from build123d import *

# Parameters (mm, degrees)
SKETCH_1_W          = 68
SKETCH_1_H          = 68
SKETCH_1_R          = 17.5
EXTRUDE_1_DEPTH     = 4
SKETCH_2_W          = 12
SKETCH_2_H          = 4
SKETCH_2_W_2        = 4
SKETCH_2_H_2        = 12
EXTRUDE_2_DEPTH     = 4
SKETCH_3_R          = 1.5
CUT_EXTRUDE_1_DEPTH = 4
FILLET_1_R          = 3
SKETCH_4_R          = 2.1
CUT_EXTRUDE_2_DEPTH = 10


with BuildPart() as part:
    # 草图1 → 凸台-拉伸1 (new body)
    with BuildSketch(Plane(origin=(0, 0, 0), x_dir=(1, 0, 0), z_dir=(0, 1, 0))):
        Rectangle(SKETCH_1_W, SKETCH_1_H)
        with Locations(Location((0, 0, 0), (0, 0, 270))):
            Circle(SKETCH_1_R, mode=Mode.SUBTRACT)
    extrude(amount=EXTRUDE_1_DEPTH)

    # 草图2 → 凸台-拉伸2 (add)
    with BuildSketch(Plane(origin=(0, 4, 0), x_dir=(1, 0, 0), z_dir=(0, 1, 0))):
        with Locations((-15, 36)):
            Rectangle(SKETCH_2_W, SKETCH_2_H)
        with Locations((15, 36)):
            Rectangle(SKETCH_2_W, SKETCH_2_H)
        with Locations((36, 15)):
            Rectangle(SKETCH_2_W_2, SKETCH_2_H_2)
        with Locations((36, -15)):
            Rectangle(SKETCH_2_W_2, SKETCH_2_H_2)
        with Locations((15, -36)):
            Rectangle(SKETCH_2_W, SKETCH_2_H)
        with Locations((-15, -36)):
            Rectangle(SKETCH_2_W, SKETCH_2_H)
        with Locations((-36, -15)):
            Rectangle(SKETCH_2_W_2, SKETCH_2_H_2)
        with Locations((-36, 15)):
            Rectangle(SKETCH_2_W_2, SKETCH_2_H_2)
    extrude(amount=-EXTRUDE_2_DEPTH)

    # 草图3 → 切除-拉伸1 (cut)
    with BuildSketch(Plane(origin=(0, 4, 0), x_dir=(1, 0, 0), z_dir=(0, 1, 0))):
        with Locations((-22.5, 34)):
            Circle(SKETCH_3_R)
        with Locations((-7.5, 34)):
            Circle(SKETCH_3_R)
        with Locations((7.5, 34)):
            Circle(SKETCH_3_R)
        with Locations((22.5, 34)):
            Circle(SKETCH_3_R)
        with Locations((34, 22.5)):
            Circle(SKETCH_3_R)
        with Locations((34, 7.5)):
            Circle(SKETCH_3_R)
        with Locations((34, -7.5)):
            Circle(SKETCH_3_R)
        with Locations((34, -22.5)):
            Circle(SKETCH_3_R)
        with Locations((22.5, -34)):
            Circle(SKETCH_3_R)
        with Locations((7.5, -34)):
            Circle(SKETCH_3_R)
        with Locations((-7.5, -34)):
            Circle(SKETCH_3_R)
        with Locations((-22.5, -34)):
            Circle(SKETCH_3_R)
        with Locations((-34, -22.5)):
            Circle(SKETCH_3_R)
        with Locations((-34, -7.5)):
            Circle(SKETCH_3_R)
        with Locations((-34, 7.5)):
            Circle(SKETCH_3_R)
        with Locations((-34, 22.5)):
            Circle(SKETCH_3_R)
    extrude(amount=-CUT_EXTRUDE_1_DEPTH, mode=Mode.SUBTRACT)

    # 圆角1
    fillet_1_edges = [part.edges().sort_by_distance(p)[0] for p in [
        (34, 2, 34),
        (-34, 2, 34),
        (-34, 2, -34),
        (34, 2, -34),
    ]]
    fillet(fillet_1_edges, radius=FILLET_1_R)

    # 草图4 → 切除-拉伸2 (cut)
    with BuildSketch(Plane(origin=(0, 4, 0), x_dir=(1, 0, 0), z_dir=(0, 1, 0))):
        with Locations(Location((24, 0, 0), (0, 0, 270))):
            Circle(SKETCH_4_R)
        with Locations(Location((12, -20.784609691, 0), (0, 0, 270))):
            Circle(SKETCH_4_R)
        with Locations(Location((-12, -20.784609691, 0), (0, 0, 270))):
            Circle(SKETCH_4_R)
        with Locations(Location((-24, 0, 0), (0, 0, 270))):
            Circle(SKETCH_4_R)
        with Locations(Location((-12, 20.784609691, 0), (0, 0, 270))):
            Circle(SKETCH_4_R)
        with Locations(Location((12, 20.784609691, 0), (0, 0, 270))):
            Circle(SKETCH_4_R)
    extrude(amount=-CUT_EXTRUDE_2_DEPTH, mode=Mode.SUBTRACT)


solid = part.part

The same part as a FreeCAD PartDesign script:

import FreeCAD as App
import Part
import Sketcher

V = App.Vector
Q = App.Units.Quantity


def edges_at(feature, points):
    """Names of the edges that pass closest to the given points."""
    edges = feature.Shape.Edges
    near = lambda p: min(range(len(edges)), key=lambda i: edges[i].distToShape(Part.Vertex(*p))[0])
    return sorted({f"Edge{near(p) + 1}" for p in points})

doc = App.newDocument("Part")
params = doc.addObject("Spreadsheet::Sheet", "Params")
for row, (alias, value) in enumerate([
    ("sketch1_diameter", "35 mm"),
    ("sketch1_width", "68 mm"),
    ("pad1_length", "4 mm"),
    ("sketch2_width", "12 mm"),
    ("sketch2_width2", "4 mm"),
    ("pad2_length", "4 mm"),
    ("sketch3_diameter", "3 mm"),
    ("pocket1_length", "4 mm"),
    ("fillet_radius", "3 mm"),
    ("sketch4_diameter", "4.2 mm"),
    ("pocket2_length", "10 mm"),
], start=1):
    params.set(f"A{row}", alias)
    params.set(f"B{row}", "=" + value)
    params.setAlias(f"B{row}", alias)

body = doc.addObject("PartDesign::Body", "Body")

# Sketch on XZ plane
sketch1 = body.newObject("Sketcher::SketchObject", "Sketch")
sketch1.AttachmentSupport = (doc.getObject("XZ_Plane"), [""])
sketch1.MapMode = "FlatFace"
sketch1.addGeometry([
    Part.LineSegment(V(-34, -34, 0), V(-34, 34, 0)),  # 0
    Part.LineSegment(V(-34, 34, 0), V(34, 34, 0)),  # 1
    Part.LineSegment(V(34, 34, 0), V(34, -34, 0)),  # 2
    Part.LineSegment(V(34, -34, 0), V(-34, -34, 0)),  # 3
    Part.Circle(V(0, 0, 0), V(0, 0, 1), 18),  # 4
], False)
sketch1.addConstraint([
    Sketcher.Constraint("Coincident", 0, 2, 1, 1),
    Sketcher.Constraint("Coincident", 1, 2, 2, 1),
    Sketcher.Constraint("Coincident", 2, 2, 3, 1),
    Sketcher.Constraint("Coincident", 3, 2, 0, 1),
    Sketcher.Constraint("Vertical", 0),
    Sketcher.Constraint("Horizontal", 1),
    Sketcher.Constraint("Vertical", 2),
    Sketcher.Constraint("Horizontal", 3),
    Sketcher.Constraint("Coincident", 4, 3, -1, 1),
    Sketcher.Constraint("Symmetric", 0, 2, 2, 2, -1, 1),
    Sketcher.Constraint("Equal", 3, 0),
    Sketcher.Constraint("Diameter", 4, Q("35 mm")),
    Sketcher.Constraint("DistanceX", 1, 1, 1, 2, Q("68 mm")),
])
sketch1.setExpression("Constraints[11]", "Params.sketch1_diameter")
sketch1.setExpression("Constraints[12]", "Params.sketch1_width")
pad1 = body.newObject("PartDesign::Pad", "Pad")
pad1.Profile = sketch1
pad1.setExpression("Length", "Params.pad1_length")
pad1.Reversed = True

# Sketch on XZ plane
sketch2 = body.newObject("Sketcher::SketchObject", "Sketch001")
sketch2.AttachmentSupport = (doc.getObject("XZ_Plane"), [""])
sketch2.MapMode = "FlatFace"
sketch2.AttachmentOffset = App.Placement(V(0, 0, -4), App.Rotation())
sketch2.addGeometry([
    Part.LineSegment(V(-21, -38, 0), V(-21, -34, 0)),  # 0
    Part.LineSegment(V(-21, -34, 0), V(-9, -34, 0)),  # 1
    Part.LineSegment(V(-9, -34, 0), V(-9, -38, 0)),  # 2
    Part.LineSegment(V(-9, -38, 0), V(-21, -38, 0)),  # 3
    Part.LineSegment(V(9, -38, 0), V(9, -34, 0)),  # 4
    Part.LineSegment(V(9, -34, 0), V(21, -34, 0)),  # 5
    Part.LineSegment(V(21, -34, 0), V(21, -38, 0)),  # 6
    Part.LineSegment(V(21, -38, 0), V(9, -38, 0)),  # 7
    Part.LineSegment(V(34, -21, 0), V(34, -9, 0)),  # 8
    Part.LineSegment(V(34, -9, 0), V(38, -9, 0)),  # 9
    Part.LineSegment(V(38, -9, 0), V(38, -21, 0)),  # 10
    Part.LineSegment(V(38, -21, 0), V(34, -21, 0)),  # 11
    Part.LineSegment(V(34, 9, 0), V(34, 21, 0)),  # 12
    Part.LineSegment(V(34, 21, 0), V(38, 21, 0)),  # 13
    Part.LineSegment(V(38, 21, 0), V(38, 9, 0)),  # 14
    Part.LineSegment(V(38, 9, 0), V(34, 9, 0)),  # 15
    Part.LineSegment(V(9, 34, 0), V(9, 38, 0)),  # 16
    Part.LineSegment(V(9, 38, 0), V(21, 38, 0)),  # 17
    Part.LineSegment(V(21, 38, 0), V(21, 34, 0)),  # 18
    Part.LineSegment(V(21, 34, 0), V(9, 34, 0)),  # 19
    Part.LineSegment(V(-21, 34, 0), V(-21, 38, 0)),  # 20
    Part.LineSegment(V(-21, 38, 0), V(-9, 38, 0)),  # 21
    Part.LineSegment(V(-9, 38, 0), V(-9, 34, 0)),  # 22
    Part.LineSegment(V(-9, 34, 0), V(-21, 34, 0)),  # 23
    Part.LineSegment(V(-38, 9, 0), V(-38, 21, 0)),  # 24
    Part.LineSegment(V(-38, 21, 0), V(-34, 21, 0)),  # 25
    Part.LineSegment(V(-34, 21, 0), V(-34, 9, 0)),  # 26
    Part.LineSegment(V(-34, 9, 0), V(-38, 9, 0)),  # 27
    Part.LineSegment(V(-38, -21, 0), V(-38, -9, 0)),  # 28
    Part.LineSegment(V(-38, -9, 0), V(-34, -9, 0)),  # 29
    Part.LineSegment(V(-34, -9, 0), V(-34, -21, 0)),  # 30
    Part.LineSegment(V(-34, -21, 0), V(-38, -21, 0)),  # 31
], False)
sketch2.addConstraint([
    Sketcher.Constraint("Coincident", 0, 2, 1, 1),
    Sketcher.Constraint("Coincident", 1, 2, 2, 1),
    Sketcher.Constraint("Coincident", 2, 2, 3, 1),
    Sketcher.Constraint("Coincident", 3, 2, 0, 1),
    Sketcher.Constraint("Coincident", 4, 2, 5, 1),
    Sketcher.Constraint("Coincident", 5, 2, 6, 1),
    Sketcher.Constraint("Coincident", 6, 2, 7, 1),
    Sketcher.Constraint("Coincident", 7, 2, 4, 1),
    Sketcher.Constraint("Coincident", 8, 2, 9, 1),
    Sketcher.Constraint("Coincident", 9, 2, 10, 1),
    Sketcher.Constraint("Coincident", 10, 2, 11, 1),
    Sketcher.Constraint("Coincident", 11, 2, 8, 1),
    Sketcher.Constraint("Coincident", 12, 2, 13, 1),
    Sketcher.Constraint("Coincident", 13, 2, 14, 1),
    Sketcher.Constraint("Coincident", 14, 2, 15, 1),
    Sketcher.Constraint("Coincident", 15, 2, 12, 1),
    Sketcher.Constraint("Coincident", 16, 2, 17, 1),
    Sketcher.Constraint("Coincident", 17, 2, 18, 1),
    Sketcher.Constraint("Coincident", 18, 2, 19, 1),
    Sketcher.Constraint("Coincident", 19, 2, 16, 1),
    Sketcher.Constraint("Coincident", 20, 2, 21, 1),
    Sketcher.Constraint("Coincident", 21, 2, 22, 1),
    Sketcher.Constraint("Coincident", 22, 2, 23, 1),
    Sketcher.Constraint("Coincident", 23, 2, 20, 1),
    Sketcher.Constraint("Coincident", 24, 2, 25, 1),
    Sketcher.Constraint("Coincident", 25, 2, 26, 1),
    Sketcher.Constraint("Coincident", 26, 2, 27, 1),
    Sketcher.Constraint("Coincident", 27, 2, 24, 1),
    Sketcher.Constraint("Coincident", 28, 2, 29, 1),
    Sketcher.Constraint("Coincident", 29, 2, 30, 1),
    Sketcher.Constraint("Coincident", 30, 2, 31, 1),
    Sketcher.Constraint("Coincident", 31, 2, 28, 1),
    Sketcher.Constraint("Vertical", 0),
    Sketcher.Constraint("Horizontal", 1),
    Sketcher.Constraint("Vertical", 2),
    Sketcher.Constraint("Horizontal", 3),
    Sketcher.Constraint("Vertical", 4),
    Sketcher.Constraint("Horizontal", 5),
    Sketcher.Constraint("Vertical", 6),
    Sketcher.Constraint("Horizontal", 7),
    Sketcher.Constraint("Vertical", 8),
    Sketcher.Constraint("Horizontal", 9),
    Sketcher.Constraint("Vertical", 10),
    Sketcher.Constraint("Horizontal", 11),
    Sketcher.Constraint("Vertical", 12),
    Sketcher.Constraint("Horizontal", 13),
    Sketcher.Constraint("Vertical", 14),
    Sketcher.Constraint("Horizontal", 15),
    Sketcher.Constraint("Vertical", 16),
    Sketcher.Constraint("Horizontal", 17),
    Sketcher.Constraint("Vertical", 18),
    Sketcher.Constraint("Horizontal", 19),
    Sketcher.Constraint("Vertical", 20),
    Sketcher.Constraint("Horizontal", 21),
    Sketcher.Constraint("Vertical", 22),
    Sketcher.Constraint("Horizontal", 23),
    Sketcher.Constraint("Vertical", 24),
    Sketcher.Constraint("Horizontal", 25),
    Sketcher.Constraint("Vertical", 26),
    Sketcher.Constraint("Horizontal", 27),
    Sketcher.Constraint("Vertical", 28),
    Sketcher.Constraint("Horizontal", 29),
    Sketcher.Constraint("Vertical", 30),
    Sketcher.Constraint("Horizontal", 31),
    Sketcher.Constraint("Symmetric", 2, 2, 16, 2, -1, 1),
    Sketcher.Constraint("Symmetric", 0, 2, 18, 2, -1, 1),
    Sketcher.Constraint("Symmetric", 6, 2, 20, 2, -1, 1),
    Sketcher.Constraint("Symmetric", 4, 2, 22, 2, -1, 1),
    Sketcher.Constraint("Symmetric", 10, 2, 24, 2, -1, 1),
    Sketcher.Constraint("Symmetric", 8, 2, 26, 2, -1, 1),
    Sketcher.Constraint("Symmetric", 14, 2, 28, 2, -1, 1),
    Sketcher.Constraint("Symmetric", 12, 2, 30, 2, -1, 1),
    Sketcher.Constraint("Symmetric", 1, 2, 4, 2, -2),
    Sketcher.Constraint("Symmetric", 3, 2, 6, 2, -2),
    Sketcher.Constraint("Symmetric", 13, 2, 24, 2, -2),
    Sketcher.Constraint("Symmetric", 15, 2, 26, 2, -2),
    Sketcher.Constraint("Equal", 31, 0),
    Sketcher.Constraint("Equal", 23, 8),
    Sketcher.Constraint("DistanceX", 1, 1, 1, 2, Q("12 mm")),
    Sketcher.Constraint("DistanceX", 9, 1, 9, 2, Q("4 mm")),
    Sketcher.Constraint("DistanceX", 0, 2, -1, 1, Q("21 mm")),
    Sketcher.Constraint("DistanceY", 0, 2, -1, 1, Q("34 mm")),
    Sketcher.Constraint("DistanceX", -1, 1, 8, 2, Q("34 mm")),
    Sketcher.Constraint("DistanceY", 8, 2, -1, 1, Q("9 mm")),
])
sketch2.setExpression("Constraints[78]", "Params.sketch2_width")
sketch2.setExpression("Constraints[79]", "Params.sketch2_width2")
pad2 = body.newObject("PartDesign::Pad", "Pad001")
pad2.Profile = sketch2
pad2.setExpression("Length", "Params.pad2_length")

# Sketch on XZ plane
sketch3 = body.newObject("Sketcher::SketchObject", "Sketch002")
sketch3.AttachmentSupport = (doc.getObject("XZ_Plane"), [""])
sketch3.MapMode = "FlatFace"
sketch3.AttachmentOffset = App.Placement(V(0, 0, -4), App.Rotation())
sketch3.addGeometry([
    Part.Circle(V(-22.5, -34, 0), V(0, 0, 1), 1.5),  # 0
    Part.Circle(V(-7.5, -34, 0), V(0, 0, 1), 1.5),  # 1
    Part.Circle(V(7.5, -34, 0), V(0, 0, 1), 1.5),  # 2
    Part.Circle(V(22.5, -34, 0), V(0, 0, 1), 1.5),  # 3
    Part.Circle(V(34, -22.5, 0), V(0, 0, 1), 1.5),  # 4
    Part.Circle(V(34, -7.5, 0), V(0, 0, 1), 1.5),  # 5
    Part.Circle(V(34, 7.5, 0), V(0, 0, 1), 1.5),  # 6
    Part.Circle(V(34, 22.5, 0), V(0, 0, 1), 1.5),  # 7
    Part.Circle(V(22.5, 34, 0), V(0, 0, 1), 1.5),  # 8
    Part.Circle(V(7.5, 34, 0), V(0, 0, 1), 1.5),  # 9
    Part.Circle(V(-7.5, 34, 0), V(0, 0, 1), 1.5),  # 10
    Part.Circle(V(-22.5, 34, 0), V(0, 0, 1), 1.5),  # 11
    Part.Circle(V(-34, 22.5, 0), V(0, 0, 1), 1.5),  # 12
    Part.Circle(V(-34, 7.5, 0), V(0, 0, 1), 1.5),  # 13
    Part.Circle(V(-34, -7.5, 0), V(0, 0, 1), 1.5),  # 14
    Part.Circle(V(-34, -22.5, 0), V(0, 0, 1), 1.5),  # 15
], False)
sketch3.addConstraint([
    Sketcher.Constraint("Equal", 0, 1),
    Sketcher.Constraint("Equal", 1, 2),
    Sketcher.Constraint("Equal", 2, 3),
    Sketcher.Constraint("Equal", 3, 4),
    Sketcher.Constraint("Equal", 4, 5),
    Sketcher.Constraint("Equal", 5, 6),
    Sketcher.Constraint("Equal", 6, 7),
    Sketcher.Constraint("Equal", 7, 8),
    Sketcher.Constraint("Equal", 8, 9),
    Sketcher.Constraint("Equal", 9, 10),
    Sketcher.Constraint("Equal", 10, 11),
    Sketcher.Constraint("Equal", 11, 12),
    Sketcher.Constraint("Equal", 12, 13),
    Sketcher.Constraint("Equal", 13, 14),
    Sketcher.Constraint("Equal", 14, 15),
    Sketcher.Constraint("Symmetric", 0, 3, 8, 3, -1, 1),
    Sketcher.Constraint("Symmetric", 1, 3, 9, 3, -1, 1),
    Sketcher.Constraint("Symmetric", 2, 3, 10, 3, -1, 1),
    Sketcher.Constraint("Symmetric", 3, 3, 11, 3, -1, 1),
    Sketcher.Constraint("Symmetric", 4, 3, 12, 3, -1, 1),
    Sketcher.Constraint("Symmetric", 5, 3, 13, 3, -1, 1),
    Sketcher.Constraint("Symmetric", 6, 3, 14, 3, -1, 1),
    Sketcher.Constraint("Symmetric", 7, 3, 15, 3, -1, 1),
    Sketcher.Constraint("Symmetric", 1, 3, 2, 3, -2),
    Sketcher.Constraint("Symmetric", 0, 3, 3, 3, -2),
    Sketcher.Constraint("Symmetric", 7, 3, 12, 3, -2),
    Sketcher.Constraint("Symmetric", 6, 3, 13, 3, -2),
    Sketcher.Constraint("Horizontal", 0, 3, 1, 3),
    Sketcher.Constraint("Vertical", 4, 3, 5, 3),
    Sketcher.Constraint("Diameter", 0, Q("3 mm")),
    Sketcher.Constraint("DistanceY", 0, 3, -1, 1, Q("34 mm")),
    Sketcher.Constraint("DistanceX", -1, 1, 4, 3, Q("34 mm")),
    Sketcher.Constraint("DistanceX", 0, 3, 1, 3, Q("15 mm")),
    Sketcher.Constraint("DistanceX", 1, 3, 2, 3, Q("15 mm")),
    Sketcher.Constraint("DistanceY", 4, 3, 5, 3, Q("15 mm")),
    Sketcher.Constraint("DistanceY", 5, 3, 6, 3, Q("15 mm")),
])
sketch3.setExpression("Constraints[29]", "Params.sketch3_diameter")
pocket1 = body.newObject("PartDesign::Pocket", "Pocket")
pocket1.Profile = sketch3
pocket1.setExpression("Length", "Params.pocket1_length")
pocket1.Reversed = True
doc.recompute()

fillet = body.newObject("PartDesign::Fillet", "Fillet")
fillet.Base = (pocket1, edges_at(pocket1, [
    (34, 2, 34),
    (-34, 2, 34),
    (-34, 2, -34),
    (34, 2, -34),
]))
fillet.setExpression("Radius", "Params.fillet_radius")

# Sketch on XZ plane
sketch4 = body.newObject("Sketcher::SketchObject", "Sketch003")
sketch4.AttachmentSupport = (doc.getObject("XZ_Plane"), [""])
sketch4.MapMode = "FlatFace"
sketch4.AttachmentOffset = App.Placement(V(0, 0, -4), App.Rotation())
sketch4.addGeometry([
    Part.Circle(V(24, 0, 0), V(0, 0, 1), 2.1),  # 0
    Part.Circle(V(12, 20.8, 0), V(0, 0, 1), 2.1),  # 1
    Part.Circle(V(-12, 20.8, 0), V(0, 0, 1), 2.1),  # 2
    Part.Circle(V(-24, 0, 0), V(0, 0, 1), 2.1),  # 3
    Part.Circle(V(-12, -20.8, 0), V(0, 0, 1), 2.1),  # 4
    Part.Circle(V(12, -20.8, 0), V(0, 0, 1), 2.1),  # 5
], False)
sketch4.addConstraint([
    Sketcher.Constraint("Equal", 0, 1),
    Sketcher.Constraint("Equal", 1, 2),
    Sketcher.Constraint("Equal", 2, 3),
    Sketcher.Constraint("Equal", 3, 4),
    Sketcher.Constraint("Equal", 4, 5),
    Sketcher.Constraint("Symmetric", 0, 3, 3, 3, -1, 1),
    Sketcher.Constraint("Symmetric", 1, 3, 4, 3, -1, 1),
    Sketcher.Constraint("Symmetric", 2, 3, 5, 3, -1, 1),
    Sketcher.Constraint("Symmetric", 1, 3, 2, 3, -2),
    Sketcher.Constraint("PointOnObject", 0, 3, -1),
    Sketcher.Constraint("Diameter", 0, Q("4.2 mm")),
    Sketcher.Constraint("DistanceX", -1, 1, 0, 3, Q("24 mm")),
    Sketcher.Constraint("DistanceX", -1, 1, 1, 3, Q("12 mm")),
    Sketcher.Constraint("DistanceY", -1, 1, 1, 3, Q("20.78461 mm")),
])
sketch4.setExpression("Constraints[10]", "Params.sketch4_diameter")
pocket2 = body.newObject("PartDesign::Pocket", "Pocket001")
pocket2.Profile = sketch4
pocket2.setExpression("Length", "Params.pocket2_length")
pocket2.Reversed = True

doc.recompute()
